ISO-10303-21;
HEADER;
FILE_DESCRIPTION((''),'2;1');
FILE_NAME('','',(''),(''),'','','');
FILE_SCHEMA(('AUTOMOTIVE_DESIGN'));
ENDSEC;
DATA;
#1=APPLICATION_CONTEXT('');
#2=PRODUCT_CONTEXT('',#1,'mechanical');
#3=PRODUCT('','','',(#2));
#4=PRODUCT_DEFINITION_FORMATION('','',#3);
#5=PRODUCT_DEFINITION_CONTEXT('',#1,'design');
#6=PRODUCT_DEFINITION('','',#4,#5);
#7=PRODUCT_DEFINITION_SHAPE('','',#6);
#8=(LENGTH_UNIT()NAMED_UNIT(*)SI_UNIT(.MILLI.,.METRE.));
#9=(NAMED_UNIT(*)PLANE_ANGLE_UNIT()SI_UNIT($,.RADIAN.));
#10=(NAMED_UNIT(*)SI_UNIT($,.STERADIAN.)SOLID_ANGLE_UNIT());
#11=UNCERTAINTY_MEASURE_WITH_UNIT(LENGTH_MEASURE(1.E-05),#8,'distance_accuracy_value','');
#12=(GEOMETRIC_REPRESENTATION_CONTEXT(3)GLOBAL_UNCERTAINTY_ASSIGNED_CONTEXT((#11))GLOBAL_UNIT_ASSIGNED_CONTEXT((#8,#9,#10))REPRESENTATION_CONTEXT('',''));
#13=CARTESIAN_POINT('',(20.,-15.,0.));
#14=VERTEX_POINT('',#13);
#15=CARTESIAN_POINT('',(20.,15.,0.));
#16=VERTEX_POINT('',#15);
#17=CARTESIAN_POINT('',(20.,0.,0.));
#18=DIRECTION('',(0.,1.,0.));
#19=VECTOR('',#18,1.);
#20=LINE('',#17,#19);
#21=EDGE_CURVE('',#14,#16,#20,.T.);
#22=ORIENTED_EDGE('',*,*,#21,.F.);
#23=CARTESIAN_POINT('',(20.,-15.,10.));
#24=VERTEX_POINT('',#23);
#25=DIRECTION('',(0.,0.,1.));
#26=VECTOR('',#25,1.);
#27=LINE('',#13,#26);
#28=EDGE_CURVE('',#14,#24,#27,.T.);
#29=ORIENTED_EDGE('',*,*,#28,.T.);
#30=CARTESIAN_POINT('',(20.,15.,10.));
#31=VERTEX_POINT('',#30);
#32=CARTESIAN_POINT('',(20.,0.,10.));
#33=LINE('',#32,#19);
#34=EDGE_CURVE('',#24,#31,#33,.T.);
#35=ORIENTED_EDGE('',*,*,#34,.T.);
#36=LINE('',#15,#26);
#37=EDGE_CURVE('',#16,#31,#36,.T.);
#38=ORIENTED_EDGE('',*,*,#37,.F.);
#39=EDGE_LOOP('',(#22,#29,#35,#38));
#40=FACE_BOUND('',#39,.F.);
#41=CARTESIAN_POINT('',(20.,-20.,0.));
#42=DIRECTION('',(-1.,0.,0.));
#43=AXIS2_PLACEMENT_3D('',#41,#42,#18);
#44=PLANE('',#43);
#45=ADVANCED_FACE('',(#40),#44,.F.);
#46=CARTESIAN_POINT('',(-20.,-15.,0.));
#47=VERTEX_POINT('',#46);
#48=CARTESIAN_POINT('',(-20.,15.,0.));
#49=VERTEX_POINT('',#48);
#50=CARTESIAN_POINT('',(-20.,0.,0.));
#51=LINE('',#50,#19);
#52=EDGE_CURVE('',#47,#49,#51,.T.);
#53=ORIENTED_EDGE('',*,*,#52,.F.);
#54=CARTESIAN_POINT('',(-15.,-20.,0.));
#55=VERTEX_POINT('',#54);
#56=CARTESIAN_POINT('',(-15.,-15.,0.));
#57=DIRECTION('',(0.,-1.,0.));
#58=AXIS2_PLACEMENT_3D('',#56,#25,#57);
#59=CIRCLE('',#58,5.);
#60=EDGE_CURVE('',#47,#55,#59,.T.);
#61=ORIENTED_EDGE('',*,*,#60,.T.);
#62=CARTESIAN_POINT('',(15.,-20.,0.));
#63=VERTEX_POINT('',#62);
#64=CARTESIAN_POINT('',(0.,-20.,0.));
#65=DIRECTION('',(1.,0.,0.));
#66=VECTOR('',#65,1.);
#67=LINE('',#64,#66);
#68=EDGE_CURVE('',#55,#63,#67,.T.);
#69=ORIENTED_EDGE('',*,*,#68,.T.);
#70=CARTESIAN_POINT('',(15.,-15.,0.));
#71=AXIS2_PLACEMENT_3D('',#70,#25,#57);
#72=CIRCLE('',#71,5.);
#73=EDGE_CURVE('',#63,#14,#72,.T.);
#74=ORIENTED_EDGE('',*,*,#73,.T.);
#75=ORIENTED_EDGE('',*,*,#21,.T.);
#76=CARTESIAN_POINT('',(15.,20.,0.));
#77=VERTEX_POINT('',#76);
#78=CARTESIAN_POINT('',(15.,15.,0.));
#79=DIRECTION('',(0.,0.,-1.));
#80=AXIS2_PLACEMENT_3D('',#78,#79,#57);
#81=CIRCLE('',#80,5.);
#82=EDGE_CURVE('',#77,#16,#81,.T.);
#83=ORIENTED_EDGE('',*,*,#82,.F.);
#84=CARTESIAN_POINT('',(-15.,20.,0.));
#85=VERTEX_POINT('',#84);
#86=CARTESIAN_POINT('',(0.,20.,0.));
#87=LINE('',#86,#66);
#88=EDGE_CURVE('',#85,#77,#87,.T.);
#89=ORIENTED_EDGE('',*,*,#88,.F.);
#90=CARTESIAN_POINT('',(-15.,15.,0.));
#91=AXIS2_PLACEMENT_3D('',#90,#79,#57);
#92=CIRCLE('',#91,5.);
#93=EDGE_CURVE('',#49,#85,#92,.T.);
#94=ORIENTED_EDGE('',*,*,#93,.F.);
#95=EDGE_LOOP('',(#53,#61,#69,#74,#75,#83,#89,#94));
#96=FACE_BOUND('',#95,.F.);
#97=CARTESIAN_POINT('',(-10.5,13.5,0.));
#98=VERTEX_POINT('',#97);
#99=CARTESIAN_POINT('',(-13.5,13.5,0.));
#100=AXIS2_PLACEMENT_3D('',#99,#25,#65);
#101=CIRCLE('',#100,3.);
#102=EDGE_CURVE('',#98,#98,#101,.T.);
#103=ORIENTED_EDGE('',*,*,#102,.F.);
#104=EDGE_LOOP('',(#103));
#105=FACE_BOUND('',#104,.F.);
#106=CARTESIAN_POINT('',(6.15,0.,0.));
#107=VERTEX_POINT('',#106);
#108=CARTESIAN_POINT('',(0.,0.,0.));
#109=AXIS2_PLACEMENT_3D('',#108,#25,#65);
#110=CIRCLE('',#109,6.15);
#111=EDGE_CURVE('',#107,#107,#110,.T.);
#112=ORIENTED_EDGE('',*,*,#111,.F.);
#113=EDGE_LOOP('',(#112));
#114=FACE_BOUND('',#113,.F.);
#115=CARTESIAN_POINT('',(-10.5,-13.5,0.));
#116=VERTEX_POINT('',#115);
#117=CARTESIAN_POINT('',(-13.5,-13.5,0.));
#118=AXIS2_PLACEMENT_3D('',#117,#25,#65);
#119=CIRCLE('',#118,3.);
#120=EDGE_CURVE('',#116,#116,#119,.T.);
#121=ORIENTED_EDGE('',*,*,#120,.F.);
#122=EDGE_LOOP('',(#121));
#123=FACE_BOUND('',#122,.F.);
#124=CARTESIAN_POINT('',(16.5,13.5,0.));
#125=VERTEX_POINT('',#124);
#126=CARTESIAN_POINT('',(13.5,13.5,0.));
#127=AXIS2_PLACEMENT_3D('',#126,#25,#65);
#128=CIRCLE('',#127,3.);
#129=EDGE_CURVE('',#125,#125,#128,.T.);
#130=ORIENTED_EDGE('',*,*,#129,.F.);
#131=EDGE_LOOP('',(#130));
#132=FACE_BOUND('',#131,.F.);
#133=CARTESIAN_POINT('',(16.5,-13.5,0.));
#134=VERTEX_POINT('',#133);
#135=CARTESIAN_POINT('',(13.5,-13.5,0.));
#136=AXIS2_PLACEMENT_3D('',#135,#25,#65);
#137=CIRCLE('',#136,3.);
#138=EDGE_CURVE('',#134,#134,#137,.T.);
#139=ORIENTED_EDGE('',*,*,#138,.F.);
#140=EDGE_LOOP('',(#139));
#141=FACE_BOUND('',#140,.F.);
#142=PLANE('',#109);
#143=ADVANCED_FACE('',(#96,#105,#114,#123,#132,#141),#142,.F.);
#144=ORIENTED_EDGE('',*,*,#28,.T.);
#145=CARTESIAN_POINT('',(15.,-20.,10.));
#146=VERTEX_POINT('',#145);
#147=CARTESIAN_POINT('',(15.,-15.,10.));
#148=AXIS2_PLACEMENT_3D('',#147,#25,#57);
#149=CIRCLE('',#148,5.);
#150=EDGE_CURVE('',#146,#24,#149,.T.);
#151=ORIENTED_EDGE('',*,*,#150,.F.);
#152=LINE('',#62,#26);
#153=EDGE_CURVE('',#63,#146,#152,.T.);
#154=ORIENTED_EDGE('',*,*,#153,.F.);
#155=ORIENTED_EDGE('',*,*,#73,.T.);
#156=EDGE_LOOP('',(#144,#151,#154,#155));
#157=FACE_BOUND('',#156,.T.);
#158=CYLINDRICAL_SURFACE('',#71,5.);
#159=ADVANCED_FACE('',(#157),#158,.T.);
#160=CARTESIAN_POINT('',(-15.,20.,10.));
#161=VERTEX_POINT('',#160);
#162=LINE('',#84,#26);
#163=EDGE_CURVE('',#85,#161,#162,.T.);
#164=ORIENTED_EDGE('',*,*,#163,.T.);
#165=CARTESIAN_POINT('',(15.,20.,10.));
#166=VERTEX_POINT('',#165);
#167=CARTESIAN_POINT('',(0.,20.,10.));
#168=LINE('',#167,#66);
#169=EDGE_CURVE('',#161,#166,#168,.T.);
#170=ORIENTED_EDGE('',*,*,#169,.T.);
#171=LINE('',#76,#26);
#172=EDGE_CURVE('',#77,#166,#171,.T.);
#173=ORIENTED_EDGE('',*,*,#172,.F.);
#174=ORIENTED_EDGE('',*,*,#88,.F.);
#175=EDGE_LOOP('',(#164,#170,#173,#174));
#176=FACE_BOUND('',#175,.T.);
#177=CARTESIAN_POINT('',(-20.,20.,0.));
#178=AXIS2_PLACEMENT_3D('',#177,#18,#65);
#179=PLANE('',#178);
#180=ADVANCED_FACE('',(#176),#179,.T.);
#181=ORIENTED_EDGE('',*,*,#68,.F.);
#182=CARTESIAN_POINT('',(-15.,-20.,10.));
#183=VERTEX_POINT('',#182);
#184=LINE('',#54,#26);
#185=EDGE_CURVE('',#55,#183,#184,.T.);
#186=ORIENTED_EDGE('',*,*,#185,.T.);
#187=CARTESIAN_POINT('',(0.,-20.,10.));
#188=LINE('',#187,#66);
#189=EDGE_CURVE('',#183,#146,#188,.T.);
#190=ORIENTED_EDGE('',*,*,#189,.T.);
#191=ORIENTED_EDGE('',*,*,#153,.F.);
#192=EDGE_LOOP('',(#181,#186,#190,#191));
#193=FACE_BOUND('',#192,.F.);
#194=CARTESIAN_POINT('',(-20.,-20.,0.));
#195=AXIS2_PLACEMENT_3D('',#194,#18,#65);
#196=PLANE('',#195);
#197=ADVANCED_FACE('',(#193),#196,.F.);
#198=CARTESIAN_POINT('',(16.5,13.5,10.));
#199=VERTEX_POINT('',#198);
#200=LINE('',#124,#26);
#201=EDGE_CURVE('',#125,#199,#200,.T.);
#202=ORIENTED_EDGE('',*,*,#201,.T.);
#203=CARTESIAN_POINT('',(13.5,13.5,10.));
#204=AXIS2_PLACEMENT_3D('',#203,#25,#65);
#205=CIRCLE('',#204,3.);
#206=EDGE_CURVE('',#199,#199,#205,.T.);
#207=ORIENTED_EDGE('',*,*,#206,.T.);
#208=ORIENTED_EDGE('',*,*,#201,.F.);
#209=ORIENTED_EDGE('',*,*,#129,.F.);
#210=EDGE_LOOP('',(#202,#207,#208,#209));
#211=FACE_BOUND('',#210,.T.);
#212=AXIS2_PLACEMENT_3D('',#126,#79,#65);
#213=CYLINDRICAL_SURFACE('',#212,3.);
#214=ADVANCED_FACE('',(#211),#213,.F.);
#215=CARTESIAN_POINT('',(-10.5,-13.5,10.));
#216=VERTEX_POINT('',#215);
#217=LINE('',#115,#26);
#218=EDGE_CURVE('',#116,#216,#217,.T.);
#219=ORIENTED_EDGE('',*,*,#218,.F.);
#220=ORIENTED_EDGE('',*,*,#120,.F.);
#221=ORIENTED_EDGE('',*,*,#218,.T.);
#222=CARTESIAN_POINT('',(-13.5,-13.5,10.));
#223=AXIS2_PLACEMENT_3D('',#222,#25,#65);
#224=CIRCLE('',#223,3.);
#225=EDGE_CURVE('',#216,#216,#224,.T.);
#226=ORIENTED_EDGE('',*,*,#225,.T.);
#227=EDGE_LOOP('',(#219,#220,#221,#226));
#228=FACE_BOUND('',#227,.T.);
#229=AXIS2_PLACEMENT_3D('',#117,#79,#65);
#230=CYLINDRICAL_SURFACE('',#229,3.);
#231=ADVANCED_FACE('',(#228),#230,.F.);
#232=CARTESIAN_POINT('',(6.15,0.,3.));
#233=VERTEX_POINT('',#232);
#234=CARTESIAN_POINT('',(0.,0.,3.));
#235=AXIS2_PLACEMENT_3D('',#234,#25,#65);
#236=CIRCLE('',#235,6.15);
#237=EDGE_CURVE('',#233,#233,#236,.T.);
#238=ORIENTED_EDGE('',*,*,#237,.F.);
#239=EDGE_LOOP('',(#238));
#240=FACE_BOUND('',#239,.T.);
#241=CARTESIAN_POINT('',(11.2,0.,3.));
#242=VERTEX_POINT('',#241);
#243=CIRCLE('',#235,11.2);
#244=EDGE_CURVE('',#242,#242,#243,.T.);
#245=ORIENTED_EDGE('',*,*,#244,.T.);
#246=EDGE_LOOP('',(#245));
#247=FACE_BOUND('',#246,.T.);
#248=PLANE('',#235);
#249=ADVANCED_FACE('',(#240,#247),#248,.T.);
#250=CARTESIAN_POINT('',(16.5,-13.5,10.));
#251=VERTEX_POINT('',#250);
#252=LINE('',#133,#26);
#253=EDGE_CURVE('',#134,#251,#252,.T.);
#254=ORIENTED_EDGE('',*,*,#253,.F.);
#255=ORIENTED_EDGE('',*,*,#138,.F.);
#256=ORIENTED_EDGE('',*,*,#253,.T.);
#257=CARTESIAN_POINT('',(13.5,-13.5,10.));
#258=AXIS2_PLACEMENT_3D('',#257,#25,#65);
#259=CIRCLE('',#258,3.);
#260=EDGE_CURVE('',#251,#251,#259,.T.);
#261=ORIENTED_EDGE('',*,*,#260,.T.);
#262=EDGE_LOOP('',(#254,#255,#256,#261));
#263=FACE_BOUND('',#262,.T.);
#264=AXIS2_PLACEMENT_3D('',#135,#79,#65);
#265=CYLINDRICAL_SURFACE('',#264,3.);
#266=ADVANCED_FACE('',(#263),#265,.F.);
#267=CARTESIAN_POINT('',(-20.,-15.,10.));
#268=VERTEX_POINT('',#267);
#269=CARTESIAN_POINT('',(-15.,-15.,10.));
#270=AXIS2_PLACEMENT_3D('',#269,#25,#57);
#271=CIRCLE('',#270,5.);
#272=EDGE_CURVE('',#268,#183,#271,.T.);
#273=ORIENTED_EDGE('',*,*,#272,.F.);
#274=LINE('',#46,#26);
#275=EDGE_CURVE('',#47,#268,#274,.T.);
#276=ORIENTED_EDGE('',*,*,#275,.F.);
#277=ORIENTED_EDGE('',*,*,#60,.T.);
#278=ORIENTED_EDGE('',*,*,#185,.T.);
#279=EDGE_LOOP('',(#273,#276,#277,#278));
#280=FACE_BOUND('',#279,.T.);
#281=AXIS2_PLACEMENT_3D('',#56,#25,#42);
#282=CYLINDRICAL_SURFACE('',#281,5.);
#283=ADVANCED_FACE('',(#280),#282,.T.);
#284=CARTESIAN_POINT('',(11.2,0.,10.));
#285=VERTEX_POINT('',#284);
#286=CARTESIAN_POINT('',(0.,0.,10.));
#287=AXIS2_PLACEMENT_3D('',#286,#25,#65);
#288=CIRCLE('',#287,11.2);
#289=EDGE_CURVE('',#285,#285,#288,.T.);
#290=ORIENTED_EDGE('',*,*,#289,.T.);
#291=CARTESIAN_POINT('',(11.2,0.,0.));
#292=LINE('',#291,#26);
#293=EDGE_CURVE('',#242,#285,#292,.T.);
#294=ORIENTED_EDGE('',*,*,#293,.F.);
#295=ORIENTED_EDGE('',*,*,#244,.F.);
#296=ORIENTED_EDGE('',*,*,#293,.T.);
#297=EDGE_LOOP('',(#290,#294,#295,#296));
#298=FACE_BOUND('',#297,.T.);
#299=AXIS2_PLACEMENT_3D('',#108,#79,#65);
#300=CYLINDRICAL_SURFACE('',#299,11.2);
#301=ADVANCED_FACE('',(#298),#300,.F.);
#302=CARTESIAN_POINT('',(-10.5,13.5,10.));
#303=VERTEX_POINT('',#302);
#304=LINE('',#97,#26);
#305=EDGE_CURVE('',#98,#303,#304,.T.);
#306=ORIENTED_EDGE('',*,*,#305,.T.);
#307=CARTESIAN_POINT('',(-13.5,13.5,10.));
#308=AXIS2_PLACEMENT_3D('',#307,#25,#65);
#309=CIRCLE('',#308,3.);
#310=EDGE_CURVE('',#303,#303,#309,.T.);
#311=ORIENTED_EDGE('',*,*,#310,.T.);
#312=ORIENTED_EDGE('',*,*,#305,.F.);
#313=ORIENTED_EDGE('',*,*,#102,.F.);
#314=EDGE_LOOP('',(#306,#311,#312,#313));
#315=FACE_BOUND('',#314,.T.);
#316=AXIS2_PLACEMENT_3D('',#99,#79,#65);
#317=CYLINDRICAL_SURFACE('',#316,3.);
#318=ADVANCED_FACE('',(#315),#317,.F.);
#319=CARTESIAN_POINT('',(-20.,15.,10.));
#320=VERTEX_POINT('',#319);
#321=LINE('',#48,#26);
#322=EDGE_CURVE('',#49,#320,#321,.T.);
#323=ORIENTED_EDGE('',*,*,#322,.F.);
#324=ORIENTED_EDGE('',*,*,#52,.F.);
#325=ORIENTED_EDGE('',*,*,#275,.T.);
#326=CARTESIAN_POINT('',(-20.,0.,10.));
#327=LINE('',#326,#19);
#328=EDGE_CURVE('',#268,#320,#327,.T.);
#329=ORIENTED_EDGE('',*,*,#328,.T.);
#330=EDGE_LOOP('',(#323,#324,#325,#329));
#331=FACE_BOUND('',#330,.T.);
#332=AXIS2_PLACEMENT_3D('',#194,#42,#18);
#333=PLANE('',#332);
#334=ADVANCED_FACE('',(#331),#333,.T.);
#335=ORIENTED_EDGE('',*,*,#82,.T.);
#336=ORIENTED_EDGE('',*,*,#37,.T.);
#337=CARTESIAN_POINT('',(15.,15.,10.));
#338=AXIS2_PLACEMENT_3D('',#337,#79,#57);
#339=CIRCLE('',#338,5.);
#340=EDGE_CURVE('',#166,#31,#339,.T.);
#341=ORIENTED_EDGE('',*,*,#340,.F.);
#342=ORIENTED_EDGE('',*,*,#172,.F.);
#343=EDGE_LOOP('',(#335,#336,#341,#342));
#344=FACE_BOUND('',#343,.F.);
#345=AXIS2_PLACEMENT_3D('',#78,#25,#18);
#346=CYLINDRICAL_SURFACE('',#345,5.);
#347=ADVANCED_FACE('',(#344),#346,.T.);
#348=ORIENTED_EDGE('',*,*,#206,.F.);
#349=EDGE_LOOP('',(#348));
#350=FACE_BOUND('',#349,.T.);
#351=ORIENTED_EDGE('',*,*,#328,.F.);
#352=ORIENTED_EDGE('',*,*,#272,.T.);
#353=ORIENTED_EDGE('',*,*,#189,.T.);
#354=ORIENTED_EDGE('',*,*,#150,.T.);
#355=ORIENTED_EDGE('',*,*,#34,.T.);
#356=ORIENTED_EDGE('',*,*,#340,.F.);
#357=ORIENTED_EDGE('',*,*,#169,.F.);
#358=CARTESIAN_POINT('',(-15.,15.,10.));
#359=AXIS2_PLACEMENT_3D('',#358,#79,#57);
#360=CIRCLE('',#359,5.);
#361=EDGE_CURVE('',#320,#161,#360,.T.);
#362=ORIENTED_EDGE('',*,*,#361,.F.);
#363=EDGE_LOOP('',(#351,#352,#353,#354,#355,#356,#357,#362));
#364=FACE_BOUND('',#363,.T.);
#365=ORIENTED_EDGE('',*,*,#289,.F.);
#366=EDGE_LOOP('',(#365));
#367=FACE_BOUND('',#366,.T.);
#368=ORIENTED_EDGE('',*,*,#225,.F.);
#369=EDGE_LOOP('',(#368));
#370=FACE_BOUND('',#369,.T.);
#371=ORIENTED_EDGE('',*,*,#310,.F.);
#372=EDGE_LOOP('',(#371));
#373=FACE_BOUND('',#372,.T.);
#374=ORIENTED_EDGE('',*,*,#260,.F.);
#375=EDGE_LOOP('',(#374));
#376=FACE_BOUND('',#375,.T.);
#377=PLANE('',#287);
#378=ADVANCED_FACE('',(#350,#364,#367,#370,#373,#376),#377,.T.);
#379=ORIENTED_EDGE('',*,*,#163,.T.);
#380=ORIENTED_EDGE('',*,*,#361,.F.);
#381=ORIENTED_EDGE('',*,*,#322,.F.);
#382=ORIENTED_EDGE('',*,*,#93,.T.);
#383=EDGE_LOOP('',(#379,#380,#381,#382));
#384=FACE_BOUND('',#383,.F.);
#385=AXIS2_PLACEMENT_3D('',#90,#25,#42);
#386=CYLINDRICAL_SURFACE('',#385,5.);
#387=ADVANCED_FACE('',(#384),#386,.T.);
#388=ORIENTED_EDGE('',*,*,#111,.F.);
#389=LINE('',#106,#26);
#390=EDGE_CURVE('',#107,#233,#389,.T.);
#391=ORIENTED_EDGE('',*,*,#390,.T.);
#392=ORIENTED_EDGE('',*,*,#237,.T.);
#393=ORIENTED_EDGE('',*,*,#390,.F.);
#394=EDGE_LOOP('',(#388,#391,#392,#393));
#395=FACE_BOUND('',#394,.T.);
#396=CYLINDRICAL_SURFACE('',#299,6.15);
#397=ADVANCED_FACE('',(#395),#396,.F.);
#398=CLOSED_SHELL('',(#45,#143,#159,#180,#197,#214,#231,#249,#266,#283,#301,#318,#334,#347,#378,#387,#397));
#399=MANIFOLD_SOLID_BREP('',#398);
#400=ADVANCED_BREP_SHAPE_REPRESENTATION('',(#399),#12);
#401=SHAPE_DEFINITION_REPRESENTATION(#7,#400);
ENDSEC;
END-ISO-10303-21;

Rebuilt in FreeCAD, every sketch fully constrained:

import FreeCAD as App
import Part
import Sketcher
from FreeCAD import Vector


def edges_at(feature, points):
    """Names of the edges that pass closest to the given points."""
    edges = feature.Shape.Edges
    near = lambda p: min(range(len(edges)), key=lambda i: edges[i].distToShape(Part.Vertex(*p))[0])
    return sorted({f"Edge{near(p) + 1}" for p in points})


def add_polygon(sketch, points):
    """Adds a closed chain of lines whose ends are joined by coincident constraints."""
    first, n = sketch.GeometryCount, len(points)
    for a, b in zip(points, points[1:] + points[:1]):
        sketch.addGeometry(Part.LineSegment(App.Vector(*a, 0), App.Vector(*b, 0)), False)
    for i in range(n):
        sketch.addConstraint(Sketcher.Constraint("Coincident", first + i, 2, first + (i + 1) % n, 1))

doc = App.newDocument("Part")
body = doc.addObject("PartDesign::Body", "Body")

# Sketch on XY plane
sketch1 = body.newObject("Sketcher::SketchObject", "Sketch")
sketch1.AttachmentSupport = (doc.getObject("XY_Plane"), [""])
sketch1.MapMode = "FlatFace"
add_polygon(sketch1, [(-20, 20), (-20, -20), (20, -20), (20, 20)])  # lines 0-3
sketch1.addGeometry(Part.Circle(Vector(-13.5, -13.5, 0), Vector(0, 0, 1), 3), False)  # 4
sketch1.addGeometry(Part.Circle(Vector(13.5, -13.5, 0), Vector(0, 0, 1), 3), False)  # 5
sketch1.addGeometry(Part.Circle(Vector(-13.5, 13.5, 0), Vector(0, 0, 1), 3), False)  # 6
sketch1.addGeometry(Part.Circle(Vector(0, 0, 0), Vector(0, 0, 1), 11.2), False)  # 7
sketch1.addGeometry(Part.Circle(Vector(13.5, 13.5, 0), Vector(0, 0, 1), 3), False)  # 8
sketch1.addConstraint(Sketcher.Constraint("Vertical", 0))
sketch1.addConstraint(Sketcher.Constraint("Horizontal", 1))
sketch1.addConstraint(Sketcher.Constraint("Vertical", 2))
sketch1.addConstraint(Sketcher.Constraint("Horizontal", 3))
sketch1.addConstraint(Sketcher.Constraint("Coincident", 7, 3, -1, 1))
sketch1.addConstraint(Sketcher.Constraint("Equal", 4, 5))
sketch1.addConstraint(Sketcher.Constraint("Equal", 5, 6))
sketch1.addConstraint(Sketcher.Constraint("Equal", 6, 8))
sketch1.addConstraint(Sketcher.Constraint("Symmetric", 5, 3, 6, 3, -1, 1))
sketch1.addConstraint(Sketcher.Constraint("Symmetric", 4, 3, 8, 3, -1, 1))
sketch1.addConstraint(Sketcher.Constraint("Symmetric", 0, 2, 2, 2, -1, 1))
sketch1.addConstraint(Sketcher.Constraint("Symmetric", 4, 3, 5, 3, -2))
sketch1.addConstraint(Sketcher.Constraint("Equal", 3, 0))
sketch1.addConstraint(Sketcher.Constraint("Diameter", 4, 6.0))
sketch1.addConstraint(Sketcher.Constraint("Diameter", 7, 22.4))
sketch1.addConstraint(Sketcher.Constraint("DistanceX", 1, 1, 1, 2, 40.0))
sketch1.addConstraint(Sketcher.Constraint("DistanceX", 4, 3, 5, 3, 27.0))
sketch1.addConstraint(Sketcher.Constraint("DistanceY", 4, 3, 6, 3, 27.0))
pad1 = body.newObject("PartDesign::Pad", "Pad")
pad1.Profile = sketch1
pad1.Length = 10

# Sketch on XY plane
sketch2 = body.newObject("Sketcher::SketchObject", "Sketch001")
sketch2.AttachmentSupport = (doc.getObject("XY_Plane"), [""])
sketch2.MapMode = "FlatFace"
sketch2.addGeometry(Part.Circle(Vector(0, 0, 0), Vector(0, 0, 1), 11.2), False)
sketch2.addGeometry(Part.Circle(Vector(0, 0, 0), Vector(0, 0, 1), 6.15), False)
sketch2.addConstraint(Sketcher.Constraint("Coincident", 0, 3, -1, 1))
sketch2.addConstraint(Sketcher.Constraint("Coincident", 1, 3, -1, 1))
sketch2.addConstraint(Sketcher.Constraint("Diameter", 0, 22.4))
sketch2.addConstraint(Sketcher.Constraint("Diameter", 1, 12.3))
pad2 = body.newObject("PartDesign::Pad", "Pad001")
pad2.Profile = sketch2
pad2.Length = 3
doc.recompute()

fillet = body.newObject("PartDesign::Fillet", "Fillet")
fillet.Base = (pad2, edges_at(pad2, [
    (-20, -20, 5),
    (20, -20, 5),
    (20, 20, 5),
    (-20, 20, 5),
]))
fillet.Radius = 5

doc.recompute()
